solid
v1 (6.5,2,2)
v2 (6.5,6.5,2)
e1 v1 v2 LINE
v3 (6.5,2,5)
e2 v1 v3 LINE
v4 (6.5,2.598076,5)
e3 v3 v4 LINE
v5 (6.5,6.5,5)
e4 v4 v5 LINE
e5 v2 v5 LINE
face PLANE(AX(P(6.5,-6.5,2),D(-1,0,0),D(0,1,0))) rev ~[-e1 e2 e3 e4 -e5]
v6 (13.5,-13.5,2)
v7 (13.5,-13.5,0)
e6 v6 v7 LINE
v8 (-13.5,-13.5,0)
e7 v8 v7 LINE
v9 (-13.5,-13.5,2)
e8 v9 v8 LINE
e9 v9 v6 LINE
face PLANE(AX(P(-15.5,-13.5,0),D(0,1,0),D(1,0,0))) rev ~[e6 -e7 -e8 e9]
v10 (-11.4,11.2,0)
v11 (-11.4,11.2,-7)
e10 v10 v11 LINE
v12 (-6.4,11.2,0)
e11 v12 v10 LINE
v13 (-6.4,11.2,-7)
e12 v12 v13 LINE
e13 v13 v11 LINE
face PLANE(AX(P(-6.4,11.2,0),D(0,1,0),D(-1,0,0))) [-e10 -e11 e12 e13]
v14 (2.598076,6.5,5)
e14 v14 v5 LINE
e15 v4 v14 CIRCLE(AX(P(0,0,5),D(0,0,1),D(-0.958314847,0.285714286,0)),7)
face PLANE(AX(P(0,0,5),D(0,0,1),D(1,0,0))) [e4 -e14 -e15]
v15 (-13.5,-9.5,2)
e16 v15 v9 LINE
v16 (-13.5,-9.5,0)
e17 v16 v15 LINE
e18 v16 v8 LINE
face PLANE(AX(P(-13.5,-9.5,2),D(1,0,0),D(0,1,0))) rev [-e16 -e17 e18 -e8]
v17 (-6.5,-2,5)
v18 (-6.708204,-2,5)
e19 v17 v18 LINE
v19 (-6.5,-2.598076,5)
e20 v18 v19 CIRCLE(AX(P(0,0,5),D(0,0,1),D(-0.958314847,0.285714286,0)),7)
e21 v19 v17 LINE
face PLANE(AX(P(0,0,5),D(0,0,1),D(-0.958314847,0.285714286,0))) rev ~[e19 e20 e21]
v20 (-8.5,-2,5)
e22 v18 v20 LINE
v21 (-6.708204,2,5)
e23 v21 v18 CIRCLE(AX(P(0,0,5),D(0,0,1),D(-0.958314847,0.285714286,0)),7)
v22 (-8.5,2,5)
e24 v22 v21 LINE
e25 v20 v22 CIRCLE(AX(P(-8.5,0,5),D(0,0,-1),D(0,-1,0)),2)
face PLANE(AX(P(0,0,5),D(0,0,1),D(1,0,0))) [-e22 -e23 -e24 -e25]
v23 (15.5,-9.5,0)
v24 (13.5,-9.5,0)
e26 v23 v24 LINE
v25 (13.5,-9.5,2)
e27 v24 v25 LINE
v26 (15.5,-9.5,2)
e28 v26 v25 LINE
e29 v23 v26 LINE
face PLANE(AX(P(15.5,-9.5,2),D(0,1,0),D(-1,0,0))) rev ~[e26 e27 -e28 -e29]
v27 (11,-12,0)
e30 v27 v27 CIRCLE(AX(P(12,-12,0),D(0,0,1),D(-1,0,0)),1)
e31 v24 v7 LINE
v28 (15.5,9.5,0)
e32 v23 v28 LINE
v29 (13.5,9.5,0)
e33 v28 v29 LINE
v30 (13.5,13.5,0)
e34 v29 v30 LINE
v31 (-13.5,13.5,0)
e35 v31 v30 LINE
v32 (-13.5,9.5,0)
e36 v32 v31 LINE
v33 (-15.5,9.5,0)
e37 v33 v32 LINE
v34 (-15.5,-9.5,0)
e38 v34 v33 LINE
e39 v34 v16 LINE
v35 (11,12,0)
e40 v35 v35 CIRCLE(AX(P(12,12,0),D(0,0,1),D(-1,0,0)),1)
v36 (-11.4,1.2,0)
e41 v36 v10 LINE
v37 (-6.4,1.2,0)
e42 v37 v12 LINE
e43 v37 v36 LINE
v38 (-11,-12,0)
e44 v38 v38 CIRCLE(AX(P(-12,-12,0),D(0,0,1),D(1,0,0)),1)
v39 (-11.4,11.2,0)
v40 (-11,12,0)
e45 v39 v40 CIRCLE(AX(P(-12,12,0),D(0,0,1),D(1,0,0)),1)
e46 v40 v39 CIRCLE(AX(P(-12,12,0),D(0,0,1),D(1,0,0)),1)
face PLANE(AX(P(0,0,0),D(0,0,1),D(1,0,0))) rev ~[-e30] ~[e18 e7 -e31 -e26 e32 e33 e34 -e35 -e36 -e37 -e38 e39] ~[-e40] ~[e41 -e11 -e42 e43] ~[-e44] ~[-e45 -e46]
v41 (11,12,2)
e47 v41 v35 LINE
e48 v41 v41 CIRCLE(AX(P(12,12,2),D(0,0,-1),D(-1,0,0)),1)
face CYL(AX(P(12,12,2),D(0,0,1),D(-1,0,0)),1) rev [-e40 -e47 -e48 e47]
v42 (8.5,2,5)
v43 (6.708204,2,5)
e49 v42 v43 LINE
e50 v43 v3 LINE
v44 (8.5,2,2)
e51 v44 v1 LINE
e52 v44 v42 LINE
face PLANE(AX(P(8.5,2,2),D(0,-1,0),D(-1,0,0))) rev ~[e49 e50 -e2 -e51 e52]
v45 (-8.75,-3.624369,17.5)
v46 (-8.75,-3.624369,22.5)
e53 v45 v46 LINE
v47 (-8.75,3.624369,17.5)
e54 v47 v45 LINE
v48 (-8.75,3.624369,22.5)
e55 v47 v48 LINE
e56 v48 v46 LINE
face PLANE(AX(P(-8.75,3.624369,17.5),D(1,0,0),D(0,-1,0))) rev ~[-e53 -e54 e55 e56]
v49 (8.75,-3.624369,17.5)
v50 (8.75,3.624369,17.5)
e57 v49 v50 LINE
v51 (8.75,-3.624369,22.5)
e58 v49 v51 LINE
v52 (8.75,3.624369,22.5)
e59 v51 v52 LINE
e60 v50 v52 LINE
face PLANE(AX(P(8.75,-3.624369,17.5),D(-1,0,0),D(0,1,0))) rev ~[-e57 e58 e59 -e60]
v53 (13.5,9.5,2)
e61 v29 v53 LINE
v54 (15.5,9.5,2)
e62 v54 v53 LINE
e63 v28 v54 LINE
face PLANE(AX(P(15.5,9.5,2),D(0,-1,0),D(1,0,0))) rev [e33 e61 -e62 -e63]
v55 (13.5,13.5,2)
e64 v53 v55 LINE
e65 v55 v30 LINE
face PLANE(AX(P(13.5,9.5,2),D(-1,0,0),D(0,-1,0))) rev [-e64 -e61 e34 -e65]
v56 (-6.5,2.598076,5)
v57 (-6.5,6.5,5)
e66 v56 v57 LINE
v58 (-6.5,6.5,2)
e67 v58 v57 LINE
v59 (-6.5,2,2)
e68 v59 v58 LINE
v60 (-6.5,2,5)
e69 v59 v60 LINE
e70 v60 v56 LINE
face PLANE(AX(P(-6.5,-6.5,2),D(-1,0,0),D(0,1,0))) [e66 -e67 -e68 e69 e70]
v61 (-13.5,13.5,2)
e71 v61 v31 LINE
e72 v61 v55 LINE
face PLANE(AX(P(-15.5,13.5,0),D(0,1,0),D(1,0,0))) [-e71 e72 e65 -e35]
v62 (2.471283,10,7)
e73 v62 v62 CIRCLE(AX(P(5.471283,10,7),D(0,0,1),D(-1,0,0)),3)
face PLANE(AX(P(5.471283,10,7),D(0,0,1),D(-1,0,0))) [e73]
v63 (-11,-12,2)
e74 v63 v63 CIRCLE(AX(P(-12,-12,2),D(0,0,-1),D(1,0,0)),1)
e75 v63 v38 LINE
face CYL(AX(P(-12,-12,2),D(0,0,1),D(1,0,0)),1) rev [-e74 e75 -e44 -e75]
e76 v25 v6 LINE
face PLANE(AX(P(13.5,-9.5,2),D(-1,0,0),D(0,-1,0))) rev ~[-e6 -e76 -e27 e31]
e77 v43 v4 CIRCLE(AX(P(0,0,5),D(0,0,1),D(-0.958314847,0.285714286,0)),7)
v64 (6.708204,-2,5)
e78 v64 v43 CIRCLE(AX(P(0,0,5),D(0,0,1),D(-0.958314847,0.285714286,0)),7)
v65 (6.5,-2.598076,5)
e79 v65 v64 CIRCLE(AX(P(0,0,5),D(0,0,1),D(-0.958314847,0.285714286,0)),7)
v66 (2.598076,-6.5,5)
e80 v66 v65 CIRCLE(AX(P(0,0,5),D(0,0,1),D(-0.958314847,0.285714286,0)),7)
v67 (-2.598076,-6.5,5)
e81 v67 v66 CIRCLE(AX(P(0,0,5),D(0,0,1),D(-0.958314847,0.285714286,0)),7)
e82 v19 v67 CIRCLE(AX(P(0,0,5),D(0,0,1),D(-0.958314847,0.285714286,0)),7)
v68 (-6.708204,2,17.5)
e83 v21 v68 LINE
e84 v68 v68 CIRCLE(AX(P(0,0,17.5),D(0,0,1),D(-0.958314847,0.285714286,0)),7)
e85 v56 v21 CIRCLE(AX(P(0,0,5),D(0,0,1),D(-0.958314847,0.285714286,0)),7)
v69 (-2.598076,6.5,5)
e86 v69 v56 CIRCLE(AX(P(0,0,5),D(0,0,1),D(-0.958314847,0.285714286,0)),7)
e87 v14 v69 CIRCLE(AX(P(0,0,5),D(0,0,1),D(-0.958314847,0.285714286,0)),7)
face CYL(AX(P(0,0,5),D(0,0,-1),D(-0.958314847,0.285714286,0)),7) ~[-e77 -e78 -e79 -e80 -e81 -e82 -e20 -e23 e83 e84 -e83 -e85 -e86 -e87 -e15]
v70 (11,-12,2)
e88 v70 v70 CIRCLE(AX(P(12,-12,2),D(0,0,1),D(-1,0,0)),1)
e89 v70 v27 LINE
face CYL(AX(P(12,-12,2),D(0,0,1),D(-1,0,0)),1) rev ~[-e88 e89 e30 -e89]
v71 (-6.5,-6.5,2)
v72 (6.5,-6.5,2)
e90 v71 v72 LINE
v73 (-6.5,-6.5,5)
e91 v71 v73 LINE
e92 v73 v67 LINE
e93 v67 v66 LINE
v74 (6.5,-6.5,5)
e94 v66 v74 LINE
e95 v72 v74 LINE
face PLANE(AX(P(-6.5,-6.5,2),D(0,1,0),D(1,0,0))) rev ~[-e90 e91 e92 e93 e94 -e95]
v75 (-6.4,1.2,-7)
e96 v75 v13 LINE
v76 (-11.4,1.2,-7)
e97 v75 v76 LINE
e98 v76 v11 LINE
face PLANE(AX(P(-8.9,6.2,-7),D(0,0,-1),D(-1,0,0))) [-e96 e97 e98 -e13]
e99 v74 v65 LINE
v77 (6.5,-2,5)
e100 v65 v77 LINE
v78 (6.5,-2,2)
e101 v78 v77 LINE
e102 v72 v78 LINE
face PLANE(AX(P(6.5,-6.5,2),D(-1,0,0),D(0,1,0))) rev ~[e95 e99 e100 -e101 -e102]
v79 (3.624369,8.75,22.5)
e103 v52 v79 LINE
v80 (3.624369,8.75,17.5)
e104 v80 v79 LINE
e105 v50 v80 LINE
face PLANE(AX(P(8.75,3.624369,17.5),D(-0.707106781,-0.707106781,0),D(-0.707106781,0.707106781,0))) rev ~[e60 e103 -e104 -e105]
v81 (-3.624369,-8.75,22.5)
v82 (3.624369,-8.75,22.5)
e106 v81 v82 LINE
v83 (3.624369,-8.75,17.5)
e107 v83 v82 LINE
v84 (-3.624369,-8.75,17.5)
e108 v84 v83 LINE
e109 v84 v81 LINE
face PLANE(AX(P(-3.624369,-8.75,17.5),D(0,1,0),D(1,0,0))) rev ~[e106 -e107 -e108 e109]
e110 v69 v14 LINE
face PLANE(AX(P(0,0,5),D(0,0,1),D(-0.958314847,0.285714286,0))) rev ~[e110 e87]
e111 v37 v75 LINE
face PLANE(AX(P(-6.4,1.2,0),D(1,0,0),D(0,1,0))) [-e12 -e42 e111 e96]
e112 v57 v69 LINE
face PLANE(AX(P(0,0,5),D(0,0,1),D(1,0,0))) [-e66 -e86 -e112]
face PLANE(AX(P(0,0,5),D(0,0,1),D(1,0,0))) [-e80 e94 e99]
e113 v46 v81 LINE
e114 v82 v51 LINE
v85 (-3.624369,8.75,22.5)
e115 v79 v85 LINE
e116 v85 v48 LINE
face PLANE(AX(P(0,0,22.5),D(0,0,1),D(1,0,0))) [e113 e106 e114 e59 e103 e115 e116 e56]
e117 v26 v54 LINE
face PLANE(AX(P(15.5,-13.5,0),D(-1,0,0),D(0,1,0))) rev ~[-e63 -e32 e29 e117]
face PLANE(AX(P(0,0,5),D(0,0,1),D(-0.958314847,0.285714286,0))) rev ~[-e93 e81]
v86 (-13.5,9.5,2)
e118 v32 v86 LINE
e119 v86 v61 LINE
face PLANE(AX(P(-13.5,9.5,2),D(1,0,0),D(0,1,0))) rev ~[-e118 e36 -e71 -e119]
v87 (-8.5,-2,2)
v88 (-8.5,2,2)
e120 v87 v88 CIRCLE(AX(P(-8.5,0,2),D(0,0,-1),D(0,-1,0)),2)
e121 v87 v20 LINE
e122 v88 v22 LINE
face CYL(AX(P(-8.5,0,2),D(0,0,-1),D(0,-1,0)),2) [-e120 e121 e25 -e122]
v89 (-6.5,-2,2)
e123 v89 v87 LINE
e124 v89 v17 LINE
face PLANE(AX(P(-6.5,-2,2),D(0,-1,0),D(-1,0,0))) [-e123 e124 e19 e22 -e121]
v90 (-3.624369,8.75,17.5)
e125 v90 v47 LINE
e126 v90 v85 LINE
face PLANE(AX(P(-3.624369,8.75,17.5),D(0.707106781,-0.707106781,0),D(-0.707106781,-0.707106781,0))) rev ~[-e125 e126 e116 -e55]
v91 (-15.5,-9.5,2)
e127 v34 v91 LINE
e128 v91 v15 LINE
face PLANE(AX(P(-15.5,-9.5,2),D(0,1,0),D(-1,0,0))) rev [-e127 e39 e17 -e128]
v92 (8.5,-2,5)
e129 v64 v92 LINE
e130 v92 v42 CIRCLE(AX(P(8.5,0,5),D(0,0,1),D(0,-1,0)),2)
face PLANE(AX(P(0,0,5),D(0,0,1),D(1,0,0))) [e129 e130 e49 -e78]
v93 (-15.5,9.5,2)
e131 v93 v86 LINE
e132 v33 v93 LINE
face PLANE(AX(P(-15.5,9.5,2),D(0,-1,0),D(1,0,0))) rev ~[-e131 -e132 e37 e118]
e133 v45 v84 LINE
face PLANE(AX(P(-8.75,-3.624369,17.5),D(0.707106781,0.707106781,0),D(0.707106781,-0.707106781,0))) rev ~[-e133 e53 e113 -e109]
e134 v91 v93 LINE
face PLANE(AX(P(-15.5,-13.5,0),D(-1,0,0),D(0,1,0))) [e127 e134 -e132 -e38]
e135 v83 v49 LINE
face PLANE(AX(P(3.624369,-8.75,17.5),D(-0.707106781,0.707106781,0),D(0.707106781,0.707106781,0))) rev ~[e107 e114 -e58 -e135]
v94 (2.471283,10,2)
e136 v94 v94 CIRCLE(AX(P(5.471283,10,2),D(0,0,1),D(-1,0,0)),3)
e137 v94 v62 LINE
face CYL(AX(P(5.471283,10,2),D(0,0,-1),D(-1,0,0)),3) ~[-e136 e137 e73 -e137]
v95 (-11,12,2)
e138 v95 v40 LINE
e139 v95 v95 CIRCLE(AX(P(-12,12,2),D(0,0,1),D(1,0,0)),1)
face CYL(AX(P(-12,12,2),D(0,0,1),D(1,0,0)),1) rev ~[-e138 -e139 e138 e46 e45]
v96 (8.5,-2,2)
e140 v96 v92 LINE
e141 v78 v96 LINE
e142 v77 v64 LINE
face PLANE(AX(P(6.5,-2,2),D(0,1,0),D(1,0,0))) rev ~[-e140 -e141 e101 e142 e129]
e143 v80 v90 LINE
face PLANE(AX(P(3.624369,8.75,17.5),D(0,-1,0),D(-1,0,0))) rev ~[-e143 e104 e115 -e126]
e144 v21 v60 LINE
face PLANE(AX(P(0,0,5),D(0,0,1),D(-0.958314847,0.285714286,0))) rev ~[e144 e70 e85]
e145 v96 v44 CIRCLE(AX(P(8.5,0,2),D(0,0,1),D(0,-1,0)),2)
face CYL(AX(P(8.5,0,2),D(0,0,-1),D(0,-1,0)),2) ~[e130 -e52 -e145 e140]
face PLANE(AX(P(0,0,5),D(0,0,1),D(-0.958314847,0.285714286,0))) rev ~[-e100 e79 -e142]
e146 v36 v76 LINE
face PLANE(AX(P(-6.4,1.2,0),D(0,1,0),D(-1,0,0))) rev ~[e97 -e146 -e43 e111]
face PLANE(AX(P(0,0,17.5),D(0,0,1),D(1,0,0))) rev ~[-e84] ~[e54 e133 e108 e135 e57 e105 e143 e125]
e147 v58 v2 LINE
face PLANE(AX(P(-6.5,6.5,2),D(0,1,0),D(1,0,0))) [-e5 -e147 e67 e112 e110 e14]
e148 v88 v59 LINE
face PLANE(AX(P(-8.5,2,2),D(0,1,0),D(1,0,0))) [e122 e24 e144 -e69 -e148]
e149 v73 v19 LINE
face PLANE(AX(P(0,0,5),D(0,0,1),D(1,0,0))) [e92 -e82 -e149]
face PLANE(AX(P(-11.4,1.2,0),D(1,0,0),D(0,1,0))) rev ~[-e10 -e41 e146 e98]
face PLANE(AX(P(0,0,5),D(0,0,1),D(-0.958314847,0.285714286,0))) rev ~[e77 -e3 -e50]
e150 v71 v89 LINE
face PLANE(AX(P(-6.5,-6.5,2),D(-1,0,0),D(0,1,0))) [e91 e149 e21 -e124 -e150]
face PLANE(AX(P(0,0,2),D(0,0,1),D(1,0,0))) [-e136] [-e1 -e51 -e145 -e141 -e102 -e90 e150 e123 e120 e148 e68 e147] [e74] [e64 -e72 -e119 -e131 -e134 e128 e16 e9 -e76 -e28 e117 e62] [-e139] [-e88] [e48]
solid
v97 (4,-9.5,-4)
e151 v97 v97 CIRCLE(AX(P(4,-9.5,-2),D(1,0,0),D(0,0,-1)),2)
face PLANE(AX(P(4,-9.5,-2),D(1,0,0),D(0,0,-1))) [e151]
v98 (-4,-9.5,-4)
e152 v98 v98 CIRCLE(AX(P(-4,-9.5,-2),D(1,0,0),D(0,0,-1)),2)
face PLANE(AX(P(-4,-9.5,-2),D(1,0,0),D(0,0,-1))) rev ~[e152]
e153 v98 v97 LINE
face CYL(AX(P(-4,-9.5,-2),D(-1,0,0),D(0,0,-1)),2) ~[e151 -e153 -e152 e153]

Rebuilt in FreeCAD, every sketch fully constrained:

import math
import FreeCAD as App
import Part
import Sketcher

V = App.Vector
Q = App.Units.Quantity


def add_polygon(sketch, points):
    """Adds a closed chain of lines whose ends are joined by coincident constraints."""
    first, n = sketch.GeometryCount, len(points)
    for a, b in zip(points, points[1:] + points[:1]):
        sketch.addGeometry(Part.LineSegment(App.Vector(*a, 0), App.Vector(*b, 0)), False)
    for i in range(n):
        sketch.addConstraint(Sketcher.Constraint("Coincident", first + i, 2, first + (i + 1) % n, 1))

doc = App.newDocument("Part")
body = doc.addObject("PartDesign::Body", "Body")

sketch1 = body.newObject("Sketcher::SketchObject", "Sketch")
sketch1.AttachmentSupport = (doc.getObject("XY_Plane"), [""])
sketch1.MapMode = "FlatFace"
add_polygon(sketch1, [(-15.5, 13.5), (-15.5, -13.5), (15.5, -13.5), (15.5, 13.5)])
sketch1.addConstraint([
    Sketcher.Constraint("Vertical", 0),
    Sketcher.Constraint("Horizontal", 1),
    Sketcher.Constraint("Vertical", 2),
    Sketcher.Constraint("Horizontal", 3),
    Sketcher.Constraint("Symmetric", 0, 2, 2, 2, -1, 1),
    Sketcher.Constraint("DistanceX", 1, 1, 1, 2, Q("31 mm")),
    Sketcher.Constraint("DistanceY", 0, 2, 0, 1, Q("27 mm")),
])
pad1 = body.newObject("PartDesign::Pad", "Pad")
pad1.Profile = sketch1
pad1.Length = 2

sketch2 = body.newObject("Sketcher::SketchObject", "Sketch001")
sketch2.AttachmentSupport = (doc.getObject("XY_Plane"), [""])
sketch2.MapMode = "FlatFace"
sketch2.AttachmentOffset = App.Placement(V(0, 0, 2), App.Rotation())
add_polygon(sketch2, [(-15.5, 13.5), (-15.5, 9.5), (-13.5, 9.5), (-13.5, 13.5)])
sketch2.addConstraint([
    Sketcher.Constraint("Vertical", 0),
    Sketcher.Constraint("Horizontal", 1),
    Sketcher.Constraint("Vertical", 2),
    Sketcher.Constraint("Horizontal", 3),
    Sketcher.Constraint("DistanceX", 1, 1, 1, 2, Q("2 mm")),
    Sketcher.Constraint("DistanceY", 0, 2, 0, 1, Q("4 mm")),
    Sketcher.Constraint("DistanceX", 0, 2, -1, 1, Q("15.5 mm")),
    Sketcher.Constraint("DistanceY", -1, 1, 0, 2, Q("9.5 mm")),
])
pocket1 = body.newObject("PartDesign::Pocket", "Pocket")
pocket1.Profile = sketch2
pocket1.Length = 43.303753
pocket1.Midplane = True

sketch3 = body.newObject("Sketcher::SketchObject", "Sketch002")
sketch3.AttachmentSupport = (doc.getObject("XY_Plane"), [""])
sketch3.MapMode = "FlatFace"
sketch3.AttachmentOffset = App.Placement(V(0, 0, 2), App.Rotation())
sketch3.addGeometry(Part.Circle(V(-12, 12, 0), V(0, 0, 1), 1), False)
sketch3.addConstraint([
    Sketcher.Constraint("Diameter", 0, Q("2 mm")),
    Sketcher.Constraint("DistanceX", 0, 3, -1, 1, Q("12 mm")),
    Sketcher.Constraint("DistanceY", -1, 1, 0, 3, Q("12 mm")),
])
pocket2 = body.newObject("PartDesign::Pocket", "Pocket001")
pocket2.Profile = sketch3
pocket2.Type = "ThroughAll"
doc.recompute()

mirrored = body.newObject("PartDesign::Mirrored", "Mirrored")
mirrored.Originals = [pocket1, pocket2]
mirrored.MirrorPlane = (doc.getObject("YZ_Plane"), [""])
body.Tip = mirrored
doc.recompute()

mirrored2 = body.newObject("PartDesign::Mirrored", "Mirrored001")
mirrored2.Originals = [pocket1, pocket2]
mirrored2.MirrorPlane = (doc.getObject("XZ_Plane"), [""])
body.Tip = mirrored2

sketch4 = body.newObject("Sketcher::SketchObject", "Sketch003")
sketch4.AttachmentSupport = (doc.getObject("XY_Plane"), [""])
sketch4.MapMode = "FlatFace"
sketch4.AttachmentOffset = App.Placement(V(0, 0, 2), App.Rotation())
add_polygon(sketch4, [(15.5, -13.5), (15.5, -9.5), (13.5, -9.5), (13.5, -13.5)])
sketch4.addConstraint([
    Sketcher.Constraint("Vertical", 0),
    Sketcher.Constraint("Horizontal", 1),
    Sketcher.Constraint("Vertical", 2),
    Sketcher.Constraint("Horizontal", 3),
    Sketcher.Constraint("DistanceX", 1, 2, 1, 1, Q("2 mm")),
    Sketcher.Constraint("DistanceY", 0, 1, 0, 2, Q("4 mm")),
    Sketcher.Constraint("DistanceX", -1, 1, 0, 2, Q("15.5 mm")),
    Sketcher.Constraint("DistanceY", 0, 2, -1, 1, Q("9.5 mm")),
])
pocket3 = body.newObject("PartDesign::Pocket", "Pocket002")
pocket3.Profile = sketch4
pocket3.Length = 43.303753
pocket3.Midplane = True

sketch5 = body.newObject("Sketcher::SketchObject", "Sketch004")
sketch5.AttachmentSupport = (doc.getObject("XY_Plane"), [""])
sketch5.MapMode = "FlatFace"
sketch5.AttachmentOffset = App.Placement(V(0, 0, 2), App.Rotation())
sketch5.addGeometry(Part.Circle(V(12, -12, 0), V(0, 0, 1), 1), False)
sketch5.addConstraint([
    Sketcher.Constraint("Diameter", 0, Q("2 mm")),
    Sketcher.Constraint("DistanceX", -1, 1, 0, 3, Q("12 mm")),
    Sketcher.Constraint("DistanceY", 0, 3, -1, 1, Q("12 mm")),
])
pocket4 = body.newObject("PartDesign::Pocket", "Pocket003")
pocket4.Profile = sketch5
pocket4.Type = "ThroughAll"

sketch6 = body.newObject("Sketcher::SketchObject", "Sketch005")
sketch6.AttachmentSupport = (doc.getObject("XY_Plane"), [""])
sketch6.MapMode = "FlatFace"
sketch6.AttachmentOffset = App.Placement(V(0, 0, 2), App.Rotation())
add_polygon(sketch6, [(-6.5, 6.5), (-6.5, -6.5), (6.5, -6.5), (6.5, 6.5)])
sketch6.addConstraint([
    Sketcher.Constraint("Vertical", 0),
    Sketcher.Constraint("Horizontal", 1),
    Sketcher.Constraint("Vertical", 2),
    Sketcher.Constraint("Horizontal", 3),
    Sketcher.Constraint("Symmetric", 0, 2, 2, 2, -1, 1),
    Sketcher.Constraint("Equal", 3, 0),
    Sketcher.Constraint("DistanceX", 1, 1, 1, 2, Q("13 mm")),
])
pad2 = body.newObject("PartDesign::Pad", "Pad001")
pad2.Profile = sketch6
pad2.Length = 3

sketch7 = body.newObject("Sketcher::SketchObject", "Sketch006")
sketch7.AttachmentSupport = (doc.getObject("XY_Plane"), [""])
sketch7.MapMode = "FlatFace"
sketch7.AttachmentOffset = App.Placement(V(0, 0, 2), App.Rotation())
sketch7.addGeometry([
    Part.LineSegment(V(6.5, 2, 0), V(6.5, -2, 0)),
    Part.LineSegment(V(6.5, -2, 0), V(8.5, -2, 0)),
    Part.ArcOfCircle(Part.Circle(V(8.5, 0, 0), V(0, 0, 1), 2), math.radians(-90), math.radians(90)),
    Part.LineSegment(V(8.5, 2, 0), V(6.5, 2, 0)),
    Part.LineSegment(V(-6.5, -2, 0), V(-6.5, 2, 0)),
    Part.LineSegment(V(-6.5, 2, 0), V(-8.5, 2, 0)),
    Part.ArcOfCircle(Part.Circle(V(-8.5, 0, 0), V(0, 0, 1), 2), math.radians(90), math.radians(270)),
    Part.LineSegment(V(-8.5, -2, 0), V(-6.5, -2, 0)),
], False)
sketch7.addConstraint([
    Sketcher.Constraint("Coincident", 0, 2, 1, 1),
    Sketcher.Constraint("Tangent", 1, 2, 2, 1),
    Sketcher.Constraint("Tangent", 2, 2, 3, 1),
    Sketcher.Constraint("Coincident", 3, 2, 0, 1),
    Sketcher.Constraint("Coincident", 4, 2, 5, 1),
    Sketcher.Constraint("Tangent", 5, 2, 6, 1),
    Sketcher.Constraint("Tangent", 6, 2, 7, 1),
    Sketcher.Constraint("Coincident", 7, 2, 4, 1),
    Sketcher.Constraint("Vertical", 0),
    Sketcher.Constraint("Horizontal", 1),
    Sketcher.Constraint("Horizontal", 3),
    Sketcher.Constraint("Vertical", 4),
    Sketcher.Constraint("Horizontal", 5),
    Sketcher.Constraint("Horizontal", 7),
    Sketcher.Constraint("Equal", 2, 6),
    Sketcher.Constraint("Symmetric", 2, 3, 6, 3, -1, 1),
    Sketcher.Constraint("Symmetric", 3, 2, 4, 2, -2),
    Sketcher.Constraint("Radius", 2, Q("2 mm")),
    Sketcher.Constraint("DistanceX", 1, 1, 1, 2, Q("2 mm")),
    Sketcher.Constraint("DistanceX", 6, 3, 2, 3, Q("17 mm")),
])
pad3 = body.newObject("PartDesign::Pad", "Pad002")
pad3.Profile = sketch7
pad3.Length = 3

sketch8 = body.newObject("Sketcher::SketchObject", "Sketch007")
sketch8.AttachmentSupport = (doc.getObject("XY_Plane"), [""])
sketch8.MapMode = "FlatFace"
sketch8.AttachmentOffset = App.Placement(V(0, 0, 5), App.Rotation())
sketch8.addGeometry(Part.Circle(V(0, 0, 0), V(0, 0, 1), 7), False)
sketch8.addConstraint([
    Sketcher.Constraint("Coincident", 0, 3, -1, 1),
    Sketcher.Constraint("Diameter", 0, Q("14 mm")),
])
pad4 = body.newObject("PartDesign::Pad", "Pad003")
pad4.Profile = sketch8
pad4.Length = 12.5

sketch9 = body.newObject("Sketcher::SketchObject", "Sketch008")
sketch9.AttachmentSupport = (doc.getObject("XY_Plane"), [""])
sketch9.MapMode = "FlatFace"
sketch9.AttachmentOffset = App.Placement(V(0, 0, 17.5), App.Rotation())
add_polygon(sketch9, [(3.624369, -8.75), (8.75, -3.624369), (8.75, 3.624369), (3.624369, 8.75), (-3.624369, 8.75), (-8.75, 3.624369), (-8.75, -3.624369), (-3.624369, -8.75)])
sketch9.addConstraint([
    Sketcher.Constraint("Vertical", 1),
    Sketcher.Constraint("Horizontal", 3),
    Sketcher.Constraint("Vertical", 5),
    Sketcher.Constraint("Horizontal", 7),
    Sketcher.Constraint("Symmetric", 0, 2, 4, 2, -1, 1),
    Sketcher.Constraint("Symmetric", 2, 2, 6, 2, -1, 1),
    Sketcher.Constraint("Perpendicular", 0, 2),
    Sketcher.Constraint("Perpendicular", 2, 4),
    Sketcher.Constraint("Perpendicular", 4, 6),
    Sketcher.Constraint("Horizontal", 1, 2, 4, 2),
    Sketcher.Constraint("Vertical", 3, 2, 6, 2),
    Sketcher.Constraint("Equal", 7, 1),
    Sketcher.Constraint("DistanceX", 4, 2, 1, 2, Q("17.5 mm")),
    Sketcher.Constraint("DistanceX", 3, 2, 3, 1, Q("7.248737 mm")),
])
pad5 = body.newObject("PartDesign::Pad", "Pad004")
pad5.Profile = sketch9
pad5.Length = 5

sketch10 = body.newObject("Sketcher::SketchObject", "Sketch009")
sketch10.AttachmentSupport = (doc.getObject("XY_Plane"), [""])
sketch10.MapMode = "FlatFace"
sketch10.AttachmentOffset = App.Placement(V(0, 0, 2), App.Rotation())
sketch10.addGeometry(Part.Circle(V(5.471283, 10, 0), V(0, 0, 1), 3), False)
sketch10.addConstraint([
    Sketcher.Constraint("Diameter", 0, Q("6 mm")),
    Sketcher.Constraint("DistanceY", -1, 1, 0, 3, Q("10 mm")),
    Sketcher.Constraint("DistanceX", -1, 1, 0, 3, Q("5.471283 mm")),
])
pad6 = body.newObject("PartDesign::Pad", "Pad005")
pad6.Profile = sketch10
pad6.Length = 5

sketch11 = body.newObject("Sketcher::SketchObject", "Sketch010")
sketch11.AttachmentSupport = (doc.getObject("XY_Plane"), [""])
sketch11.MapMode = "FlatFace"
add_polygon(sketch11, [(-6.4, 11.2), (-6.4, 1.2), (-11.4, 1.2), (-11.4, 11.2)])
sketch11.addConstraint([
    Sketcher.Constraint("Vertical", 0),
    Sketcher.Constraint("Horizontal", 1),
    Sketcher.Constraint("Vertical", 2),
    Sketcher.Constraint("Horizontal", 3),
    Sketcher.Constraint("DistanceX", 1, 2, 1, 1, Q("5 mm")),
    Sketcher.Constraint("DistanceY", 0, 2, 0, 1, Q("10 mm")),
    Sketcher.Constraint("DistanceX", 0, 2, -1, 1, Q("6.4 mm")),
    Sketcher.Constraint("DistanceY", -1, 1, 0, 2, Q("1.2 mm")),
])
pad7 = body.newObject("PartDesign::Pad", "Pad006")
pad7.Profile = sketch11
pad7.Length = 7
pad7.Reversed = True
body2 = doc.addObject("PartDesign::Body", "Body001")

sketch12 = body2.newObject("Sketcher::SketchObject", "Sketch011")
sketch12.AttachmentSupport = (doc.getObject("YZ_Plane001"), [""])
sketch12.MapMode = "FlatFace"
sketch12.addGeometry(Part.Circle(V(-9.5, -2, 0), V(0, 0, 1), 2), False)
sketch12.addConstraint([
    Sketcher.Constraint("Diameter", 0, Q("4 mm")),
    Sketcher.Constraint("DistanceY", 0, 3, -1, 1, Q("2 mm")),
    Sketcher.Constraint("DistanceX", 0, 3, -1, 1, Q("9.5 mm")),
])
pad8 = body2.newObject("PartDesign::Pad", "Pad007")
pad8.Profile = sketch12
pad8.Type = "TwoLengths"
pad8.Length = 4
pad8.Length2 = 4

doc.recompute()
